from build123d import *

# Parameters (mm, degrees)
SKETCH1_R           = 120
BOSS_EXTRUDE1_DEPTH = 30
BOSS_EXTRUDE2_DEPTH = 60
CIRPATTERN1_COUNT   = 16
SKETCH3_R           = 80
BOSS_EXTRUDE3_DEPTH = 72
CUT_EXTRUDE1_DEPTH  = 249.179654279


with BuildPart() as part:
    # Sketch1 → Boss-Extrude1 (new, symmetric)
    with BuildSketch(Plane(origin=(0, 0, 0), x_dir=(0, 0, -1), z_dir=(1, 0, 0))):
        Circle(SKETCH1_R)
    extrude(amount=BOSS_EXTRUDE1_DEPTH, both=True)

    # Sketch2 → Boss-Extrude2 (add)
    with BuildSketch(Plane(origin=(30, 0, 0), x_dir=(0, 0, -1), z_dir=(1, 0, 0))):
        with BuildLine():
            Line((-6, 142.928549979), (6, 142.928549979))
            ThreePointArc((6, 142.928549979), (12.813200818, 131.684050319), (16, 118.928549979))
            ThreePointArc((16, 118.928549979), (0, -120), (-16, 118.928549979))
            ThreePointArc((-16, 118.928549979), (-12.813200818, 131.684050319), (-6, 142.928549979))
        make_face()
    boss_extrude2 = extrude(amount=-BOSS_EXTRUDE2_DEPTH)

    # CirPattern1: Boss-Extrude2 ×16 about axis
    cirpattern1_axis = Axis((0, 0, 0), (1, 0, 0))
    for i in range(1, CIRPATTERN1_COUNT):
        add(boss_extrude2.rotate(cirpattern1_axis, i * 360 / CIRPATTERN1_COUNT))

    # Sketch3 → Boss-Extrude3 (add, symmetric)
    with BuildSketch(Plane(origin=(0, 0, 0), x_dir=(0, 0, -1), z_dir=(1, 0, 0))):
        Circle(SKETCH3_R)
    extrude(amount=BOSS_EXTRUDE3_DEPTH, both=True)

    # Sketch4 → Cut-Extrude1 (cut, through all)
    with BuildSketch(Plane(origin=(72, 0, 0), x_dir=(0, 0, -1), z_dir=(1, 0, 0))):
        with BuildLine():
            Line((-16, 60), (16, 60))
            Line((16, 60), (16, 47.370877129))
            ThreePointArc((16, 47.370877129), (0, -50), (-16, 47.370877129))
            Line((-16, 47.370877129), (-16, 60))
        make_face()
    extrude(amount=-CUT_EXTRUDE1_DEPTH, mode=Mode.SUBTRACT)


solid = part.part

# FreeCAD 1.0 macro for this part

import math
import FreeCAD as App
import Part
import Sketcher
from FreeCAD import Vector
Q = App.Units.Quantity

doc = App.newDocument("Part")
body = doc.addObject("PartDesign::Body", "Body")

# Sketch on YZ plane
sketch1 = doc.addObject("Sketcher::SketchObject", "Sketch")
body.addObject(sketch1)
sketch1.AttachmentSupport = (doc.YZ_Plane, [""])
sketch1.MapMode = "FlatFace"
sketch1.addGeometry(Part.Circle(Vector(0, 0, 0), Vector(0, 0, 1), 120), False)
sketch1.addConstraint([
    Sketcher.Constraint("Coincident", 0, 3, -1, 1),
    Sketcher.Constraint("Diameter", 0, Q("240 mm")),
])
pad1 = doc.addObject("PartDesign::Pad", "Pad")
body.addObject(pad1)
pad1.Profile = sketch1
pad1.Length = 60
pad1.Midplane = True

# Sketch on YZ plane
sketch2 = doc.addObject("Sketcher::SketchObject", "Sketch001")
body.addObject(sketch2)
sketch2.AttachmentSupport = (doc.YZ_Plane, [""])
sketch2.MapMode = "FlatFace"
sketch2.AttachmentOffset = App.Placement(Vector(0, 0, 30), App.Rotation())
sketch2.addGeometry([
    Part.LineSegment(Vector(143, -6, 0), Vector(143, 6, 0)),
    Part.ArcOfCircle(Part.Circle(Vector(115, -28, 0), Vector(0, 0, 1), 44), math.radians(50), math.radians(85)),
    Part.ArcOfCircle(Part.Circle(Vector(0, 0, 0), Vector(0, 0, 1), 120), math.radians(8), math.radians(352)),
    Part.ArcOfCircle(Part.Circle(Vector(115, 28, 0), Vector(0, 0, 1), 44), math.radians(-85), math.radians(-50)),
], False)
sketch2.addConstraint([
    Sketcher.Constraint("Coincident", 0, 2, 1, 1),
    Sketcher.Constraint("Coincident", 1, 2, 2, 1),
    Sketcher.Constraint("Coincident", 2, 2, 3, 1),
    Sketcher.Constraint("Coincident", 3, 2, 0, 1),
    Sketcher.Constraint("Vertical", 0),
    Sketcher.Constraint("Coincident", 2, 3, -1, 1),
    Sketcher.Constraint("Equal", 1, 3),
    Sketcher.Constraint("Symmetric", 1, 3, 3, 3, -1),
    Sketcher.Constraint("Radius", 1, Q("44 mm")),
    Sketcher.Constraint("Radius", 2, Q("120 mm")),
    Sketcher.Constraint("DistanceY", 0, 1, 0, 2, Q("12 mm")),
    Sketcher.Constraint("DistanceY", -1, 1, 1, 2, Q("16 mm")),
    Sketcher.Constraint("DistanceX", 1, 2, 0, 2, Q("24 mm")),
])
pad2 = doc.addObject("PartDesign::Pad", "Pad001")
body.addObject(pad2)
pad2.Profile = sketch2
pad2.Length = 60
pad2.Reversed = True
doc.recompute()

polarpattern = doc.addObject("PartDesign::PolarPattern", "PolarPattern")
body.addObject(polarpattern)
polarpattern.Originals = [pad2]
polarpattern.Axis = (doc.X_Axis, [""])
polarpattern.Angle = 360
polarpattern.Occurrences = 16
body.Tip = polarpattern

# Sketch on YZ plane
sketch3 = doc.addObject("Sketcher::SketchObject", "Sketch002")
body.addObject(sketch3)
sketch3.AttachmentSupport = (doc.YZ_Plane, [""])
sketch3.MapMode = "FlatFace"
sketch3.addGeometry(Part.Circle(Vector(0, 0, 0), Vector(0, 0, 1), 80), False)
sketch3.addConstraint([
    Sketcher.Constraint("Coincident", 0, 3, -1, 1),
    Sketcher.Constraint("Diameter", 0, Q("160 mm")),
])
pad3 = doc.addObject("PartDesign::Pad", "Pad002")
body.addObject(pad3)
pad3.Profile = sketch3
pad3.Length = 144
pad3.Midplane = True

# Sketch on YZ plane
sketch4 = doc.addObject("Sketcher::SketchObject", "Sketch003")
body.addObject(sketch4)
sketch4.AttachmentSupport = (doc.YZ_Plane, [""])
sketch4.MapMode = "FlatFace"
sketch4.AttachmentOffset = App.Placement(Vector(0, 0, 72), App.Rotation())
sketch4.addGeometry([
    Part.LineSegment(Vector(60, -16, 0), Vector(60, 16, 0)),
    Part.LineSegment(Vector(60, 16, 0), Vector(47, 16, 0)),
    Part.ArcOfCircle(Part.Circle(Vector(0, 0, 0), Vector(0, 0, 1), 50), math.radians(19), math.radians(341)),
    Part.LineSegment(Vector(47, -16, 0), Vector(60, -16, 0)),
], False)
sketch4.addConstraint([
    Sketcher.Constraint("Coincident", 0, 2, 1, 1),
    Sketcher.Constraint("Coincident", 1, 2, 2, 1),
    Sketcher.Constraint("Coincident", 2, 2, 3, 1),
    Sketcher.Constraint("Coincident", 3, 2, 0, 1),
    Sketcher.Constraint("Vertical", 0),
    Sketcher.Constraint("Horizontal", 1),
    Sketcher.Constraint("Horizontal", 3),
    Sketcher.Constraint("Coincident", 2, 3, -1, 1),
    Sketcher.Constraint("Vertical", 1, 2, 2, 2),
    Sketcher.Constraint("Radius", 2, Q("50 mm")),
    Sketcher.Constraint("DistanceY", 0, 1, 0, 2, Q("32 mm")),
    Sketcher.Constraint("DistanceX", -1, 1, 0, 2, Q("60 mm")),
])
pocket1 = doc.addObject("PartDesign::Pocket", "Pocket")
body.addObject(pocket1)
pocket1.Profile = sketch4
pocket1.Type = "ThroughAll"

doc.recompute()
